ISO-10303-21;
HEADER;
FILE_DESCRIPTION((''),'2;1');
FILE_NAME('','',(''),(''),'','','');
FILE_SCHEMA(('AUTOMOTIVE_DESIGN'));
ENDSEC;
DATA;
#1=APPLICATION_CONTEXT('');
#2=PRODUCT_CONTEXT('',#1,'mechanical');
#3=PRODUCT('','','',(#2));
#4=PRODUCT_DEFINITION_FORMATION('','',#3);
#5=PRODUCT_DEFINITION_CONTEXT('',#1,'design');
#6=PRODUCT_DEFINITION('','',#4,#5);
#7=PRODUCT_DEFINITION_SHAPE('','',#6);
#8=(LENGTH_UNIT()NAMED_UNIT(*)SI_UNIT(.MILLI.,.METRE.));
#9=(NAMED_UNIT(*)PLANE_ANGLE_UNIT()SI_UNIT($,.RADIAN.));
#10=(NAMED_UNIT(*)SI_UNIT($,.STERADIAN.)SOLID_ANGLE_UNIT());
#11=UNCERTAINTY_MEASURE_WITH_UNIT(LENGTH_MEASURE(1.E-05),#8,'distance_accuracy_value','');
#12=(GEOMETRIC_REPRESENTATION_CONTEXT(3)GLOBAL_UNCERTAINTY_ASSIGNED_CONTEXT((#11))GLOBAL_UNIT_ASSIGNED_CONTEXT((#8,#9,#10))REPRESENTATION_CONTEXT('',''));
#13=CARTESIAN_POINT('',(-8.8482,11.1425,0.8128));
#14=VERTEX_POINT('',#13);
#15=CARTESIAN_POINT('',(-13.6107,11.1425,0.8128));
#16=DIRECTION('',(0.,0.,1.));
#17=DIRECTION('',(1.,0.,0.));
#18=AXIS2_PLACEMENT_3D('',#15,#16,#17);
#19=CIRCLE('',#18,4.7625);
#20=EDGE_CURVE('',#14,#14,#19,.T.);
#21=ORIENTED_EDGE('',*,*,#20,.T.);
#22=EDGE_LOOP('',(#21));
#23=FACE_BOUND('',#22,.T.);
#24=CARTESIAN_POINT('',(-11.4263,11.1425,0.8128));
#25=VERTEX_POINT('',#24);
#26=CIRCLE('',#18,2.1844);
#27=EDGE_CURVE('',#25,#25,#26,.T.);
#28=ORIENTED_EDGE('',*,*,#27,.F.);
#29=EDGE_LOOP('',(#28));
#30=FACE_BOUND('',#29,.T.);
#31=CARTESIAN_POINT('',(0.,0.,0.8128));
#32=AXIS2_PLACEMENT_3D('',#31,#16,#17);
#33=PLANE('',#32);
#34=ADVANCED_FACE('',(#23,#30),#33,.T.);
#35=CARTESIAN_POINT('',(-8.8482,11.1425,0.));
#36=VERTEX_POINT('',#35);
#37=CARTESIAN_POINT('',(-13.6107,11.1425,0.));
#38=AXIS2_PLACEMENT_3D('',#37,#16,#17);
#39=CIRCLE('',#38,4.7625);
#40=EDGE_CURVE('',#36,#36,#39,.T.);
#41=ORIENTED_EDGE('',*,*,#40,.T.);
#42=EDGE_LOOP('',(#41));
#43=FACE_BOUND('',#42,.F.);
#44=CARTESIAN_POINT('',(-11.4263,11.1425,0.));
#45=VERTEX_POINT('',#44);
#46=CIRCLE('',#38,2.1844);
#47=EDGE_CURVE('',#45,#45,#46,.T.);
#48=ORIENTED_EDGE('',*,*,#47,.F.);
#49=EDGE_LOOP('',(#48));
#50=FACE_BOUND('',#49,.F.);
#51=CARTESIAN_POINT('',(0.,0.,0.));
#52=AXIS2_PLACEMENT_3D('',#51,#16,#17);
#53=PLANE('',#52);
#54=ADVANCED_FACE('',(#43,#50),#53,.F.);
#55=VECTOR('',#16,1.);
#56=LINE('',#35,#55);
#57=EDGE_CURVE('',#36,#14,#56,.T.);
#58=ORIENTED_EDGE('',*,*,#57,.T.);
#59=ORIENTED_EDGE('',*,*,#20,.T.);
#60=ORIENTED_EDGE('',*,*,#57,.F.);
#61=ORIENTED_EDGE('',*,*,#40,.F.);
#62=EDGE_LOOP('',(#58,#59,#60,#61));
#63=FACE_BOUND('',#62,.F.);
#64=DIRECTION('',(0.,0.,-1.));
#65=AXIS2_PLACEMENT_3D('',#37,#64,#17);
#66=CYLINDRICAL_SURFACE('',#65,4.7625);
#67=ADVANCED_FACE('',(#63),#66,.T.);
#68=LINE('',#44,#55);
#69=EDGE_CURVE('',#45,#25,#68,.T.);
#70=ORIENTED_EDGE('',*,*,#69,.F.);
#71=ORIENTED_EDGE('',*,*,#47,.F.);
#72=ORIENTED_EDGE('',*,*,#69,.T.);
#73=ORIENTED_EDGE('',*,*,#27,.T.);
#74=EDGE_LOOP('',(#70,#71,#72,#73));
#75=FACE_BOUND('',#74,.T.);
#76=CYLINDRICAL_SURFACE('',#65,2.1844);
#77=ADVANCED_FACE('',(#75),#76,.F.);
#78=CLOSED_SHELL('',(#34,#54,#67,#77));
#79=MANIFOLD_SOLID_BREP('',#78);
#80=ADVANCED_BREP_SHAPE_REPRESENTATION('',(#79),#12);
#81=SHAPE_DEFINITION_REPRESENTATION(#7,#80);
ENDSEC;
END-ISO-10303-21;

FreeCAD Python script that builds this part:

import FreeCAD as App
import Part
import Sketcher
from FreeCAD import Vector
Q = App.Units.Quantity

doc = App.newDocument("Part")
body = doc.addObject("PartDesign::Body", "Body")

# Sketch on XY plane
sketch1 = body.newObject("Sketcher::SketchObject", "Sketch")
sketch1.AttachmentSupport = (doc.getObject("XY_Plane"), [""])
sketch1.MapMode = "FlatFace"
sketch1.addGeometry(Part.Circle(Vector(-13.6107, 11.1425, 0), Vector(0, 0, 1), 4.7625), False)
sketch1.addGeometry(Part.Circle(Vector(-13.6107, 11.1425, 0), Vector(0, 0, 1), 2.1844), False)
sketch1.addConstraint(Sketcher.Constraint("Coincident", 1, 3, 0, 3))
sketch1.addConstraint(Sketcher.Constraint("Diameter", 0, Q("0.375 in")))
sketch1.addConstraint(Sketcher.Constraint("Diameter", 1, Q("0.172 in")))
sketch1.addConstraint(Sketcher.Constraint("DistanceX", 0, 3, -1, 1, Q("13.6107 mm")))
sketch1.addConstraint(Sketcher.Constraint("DistanceY", -1, 1, 0, 3, Q("11.1425 mm")))
pad1 = body.newObject("PartDesign::Pad", "Pad")
pad1.Profile = sketch1
pad1.Length = Q("0.032 in")

doc.recompute()
